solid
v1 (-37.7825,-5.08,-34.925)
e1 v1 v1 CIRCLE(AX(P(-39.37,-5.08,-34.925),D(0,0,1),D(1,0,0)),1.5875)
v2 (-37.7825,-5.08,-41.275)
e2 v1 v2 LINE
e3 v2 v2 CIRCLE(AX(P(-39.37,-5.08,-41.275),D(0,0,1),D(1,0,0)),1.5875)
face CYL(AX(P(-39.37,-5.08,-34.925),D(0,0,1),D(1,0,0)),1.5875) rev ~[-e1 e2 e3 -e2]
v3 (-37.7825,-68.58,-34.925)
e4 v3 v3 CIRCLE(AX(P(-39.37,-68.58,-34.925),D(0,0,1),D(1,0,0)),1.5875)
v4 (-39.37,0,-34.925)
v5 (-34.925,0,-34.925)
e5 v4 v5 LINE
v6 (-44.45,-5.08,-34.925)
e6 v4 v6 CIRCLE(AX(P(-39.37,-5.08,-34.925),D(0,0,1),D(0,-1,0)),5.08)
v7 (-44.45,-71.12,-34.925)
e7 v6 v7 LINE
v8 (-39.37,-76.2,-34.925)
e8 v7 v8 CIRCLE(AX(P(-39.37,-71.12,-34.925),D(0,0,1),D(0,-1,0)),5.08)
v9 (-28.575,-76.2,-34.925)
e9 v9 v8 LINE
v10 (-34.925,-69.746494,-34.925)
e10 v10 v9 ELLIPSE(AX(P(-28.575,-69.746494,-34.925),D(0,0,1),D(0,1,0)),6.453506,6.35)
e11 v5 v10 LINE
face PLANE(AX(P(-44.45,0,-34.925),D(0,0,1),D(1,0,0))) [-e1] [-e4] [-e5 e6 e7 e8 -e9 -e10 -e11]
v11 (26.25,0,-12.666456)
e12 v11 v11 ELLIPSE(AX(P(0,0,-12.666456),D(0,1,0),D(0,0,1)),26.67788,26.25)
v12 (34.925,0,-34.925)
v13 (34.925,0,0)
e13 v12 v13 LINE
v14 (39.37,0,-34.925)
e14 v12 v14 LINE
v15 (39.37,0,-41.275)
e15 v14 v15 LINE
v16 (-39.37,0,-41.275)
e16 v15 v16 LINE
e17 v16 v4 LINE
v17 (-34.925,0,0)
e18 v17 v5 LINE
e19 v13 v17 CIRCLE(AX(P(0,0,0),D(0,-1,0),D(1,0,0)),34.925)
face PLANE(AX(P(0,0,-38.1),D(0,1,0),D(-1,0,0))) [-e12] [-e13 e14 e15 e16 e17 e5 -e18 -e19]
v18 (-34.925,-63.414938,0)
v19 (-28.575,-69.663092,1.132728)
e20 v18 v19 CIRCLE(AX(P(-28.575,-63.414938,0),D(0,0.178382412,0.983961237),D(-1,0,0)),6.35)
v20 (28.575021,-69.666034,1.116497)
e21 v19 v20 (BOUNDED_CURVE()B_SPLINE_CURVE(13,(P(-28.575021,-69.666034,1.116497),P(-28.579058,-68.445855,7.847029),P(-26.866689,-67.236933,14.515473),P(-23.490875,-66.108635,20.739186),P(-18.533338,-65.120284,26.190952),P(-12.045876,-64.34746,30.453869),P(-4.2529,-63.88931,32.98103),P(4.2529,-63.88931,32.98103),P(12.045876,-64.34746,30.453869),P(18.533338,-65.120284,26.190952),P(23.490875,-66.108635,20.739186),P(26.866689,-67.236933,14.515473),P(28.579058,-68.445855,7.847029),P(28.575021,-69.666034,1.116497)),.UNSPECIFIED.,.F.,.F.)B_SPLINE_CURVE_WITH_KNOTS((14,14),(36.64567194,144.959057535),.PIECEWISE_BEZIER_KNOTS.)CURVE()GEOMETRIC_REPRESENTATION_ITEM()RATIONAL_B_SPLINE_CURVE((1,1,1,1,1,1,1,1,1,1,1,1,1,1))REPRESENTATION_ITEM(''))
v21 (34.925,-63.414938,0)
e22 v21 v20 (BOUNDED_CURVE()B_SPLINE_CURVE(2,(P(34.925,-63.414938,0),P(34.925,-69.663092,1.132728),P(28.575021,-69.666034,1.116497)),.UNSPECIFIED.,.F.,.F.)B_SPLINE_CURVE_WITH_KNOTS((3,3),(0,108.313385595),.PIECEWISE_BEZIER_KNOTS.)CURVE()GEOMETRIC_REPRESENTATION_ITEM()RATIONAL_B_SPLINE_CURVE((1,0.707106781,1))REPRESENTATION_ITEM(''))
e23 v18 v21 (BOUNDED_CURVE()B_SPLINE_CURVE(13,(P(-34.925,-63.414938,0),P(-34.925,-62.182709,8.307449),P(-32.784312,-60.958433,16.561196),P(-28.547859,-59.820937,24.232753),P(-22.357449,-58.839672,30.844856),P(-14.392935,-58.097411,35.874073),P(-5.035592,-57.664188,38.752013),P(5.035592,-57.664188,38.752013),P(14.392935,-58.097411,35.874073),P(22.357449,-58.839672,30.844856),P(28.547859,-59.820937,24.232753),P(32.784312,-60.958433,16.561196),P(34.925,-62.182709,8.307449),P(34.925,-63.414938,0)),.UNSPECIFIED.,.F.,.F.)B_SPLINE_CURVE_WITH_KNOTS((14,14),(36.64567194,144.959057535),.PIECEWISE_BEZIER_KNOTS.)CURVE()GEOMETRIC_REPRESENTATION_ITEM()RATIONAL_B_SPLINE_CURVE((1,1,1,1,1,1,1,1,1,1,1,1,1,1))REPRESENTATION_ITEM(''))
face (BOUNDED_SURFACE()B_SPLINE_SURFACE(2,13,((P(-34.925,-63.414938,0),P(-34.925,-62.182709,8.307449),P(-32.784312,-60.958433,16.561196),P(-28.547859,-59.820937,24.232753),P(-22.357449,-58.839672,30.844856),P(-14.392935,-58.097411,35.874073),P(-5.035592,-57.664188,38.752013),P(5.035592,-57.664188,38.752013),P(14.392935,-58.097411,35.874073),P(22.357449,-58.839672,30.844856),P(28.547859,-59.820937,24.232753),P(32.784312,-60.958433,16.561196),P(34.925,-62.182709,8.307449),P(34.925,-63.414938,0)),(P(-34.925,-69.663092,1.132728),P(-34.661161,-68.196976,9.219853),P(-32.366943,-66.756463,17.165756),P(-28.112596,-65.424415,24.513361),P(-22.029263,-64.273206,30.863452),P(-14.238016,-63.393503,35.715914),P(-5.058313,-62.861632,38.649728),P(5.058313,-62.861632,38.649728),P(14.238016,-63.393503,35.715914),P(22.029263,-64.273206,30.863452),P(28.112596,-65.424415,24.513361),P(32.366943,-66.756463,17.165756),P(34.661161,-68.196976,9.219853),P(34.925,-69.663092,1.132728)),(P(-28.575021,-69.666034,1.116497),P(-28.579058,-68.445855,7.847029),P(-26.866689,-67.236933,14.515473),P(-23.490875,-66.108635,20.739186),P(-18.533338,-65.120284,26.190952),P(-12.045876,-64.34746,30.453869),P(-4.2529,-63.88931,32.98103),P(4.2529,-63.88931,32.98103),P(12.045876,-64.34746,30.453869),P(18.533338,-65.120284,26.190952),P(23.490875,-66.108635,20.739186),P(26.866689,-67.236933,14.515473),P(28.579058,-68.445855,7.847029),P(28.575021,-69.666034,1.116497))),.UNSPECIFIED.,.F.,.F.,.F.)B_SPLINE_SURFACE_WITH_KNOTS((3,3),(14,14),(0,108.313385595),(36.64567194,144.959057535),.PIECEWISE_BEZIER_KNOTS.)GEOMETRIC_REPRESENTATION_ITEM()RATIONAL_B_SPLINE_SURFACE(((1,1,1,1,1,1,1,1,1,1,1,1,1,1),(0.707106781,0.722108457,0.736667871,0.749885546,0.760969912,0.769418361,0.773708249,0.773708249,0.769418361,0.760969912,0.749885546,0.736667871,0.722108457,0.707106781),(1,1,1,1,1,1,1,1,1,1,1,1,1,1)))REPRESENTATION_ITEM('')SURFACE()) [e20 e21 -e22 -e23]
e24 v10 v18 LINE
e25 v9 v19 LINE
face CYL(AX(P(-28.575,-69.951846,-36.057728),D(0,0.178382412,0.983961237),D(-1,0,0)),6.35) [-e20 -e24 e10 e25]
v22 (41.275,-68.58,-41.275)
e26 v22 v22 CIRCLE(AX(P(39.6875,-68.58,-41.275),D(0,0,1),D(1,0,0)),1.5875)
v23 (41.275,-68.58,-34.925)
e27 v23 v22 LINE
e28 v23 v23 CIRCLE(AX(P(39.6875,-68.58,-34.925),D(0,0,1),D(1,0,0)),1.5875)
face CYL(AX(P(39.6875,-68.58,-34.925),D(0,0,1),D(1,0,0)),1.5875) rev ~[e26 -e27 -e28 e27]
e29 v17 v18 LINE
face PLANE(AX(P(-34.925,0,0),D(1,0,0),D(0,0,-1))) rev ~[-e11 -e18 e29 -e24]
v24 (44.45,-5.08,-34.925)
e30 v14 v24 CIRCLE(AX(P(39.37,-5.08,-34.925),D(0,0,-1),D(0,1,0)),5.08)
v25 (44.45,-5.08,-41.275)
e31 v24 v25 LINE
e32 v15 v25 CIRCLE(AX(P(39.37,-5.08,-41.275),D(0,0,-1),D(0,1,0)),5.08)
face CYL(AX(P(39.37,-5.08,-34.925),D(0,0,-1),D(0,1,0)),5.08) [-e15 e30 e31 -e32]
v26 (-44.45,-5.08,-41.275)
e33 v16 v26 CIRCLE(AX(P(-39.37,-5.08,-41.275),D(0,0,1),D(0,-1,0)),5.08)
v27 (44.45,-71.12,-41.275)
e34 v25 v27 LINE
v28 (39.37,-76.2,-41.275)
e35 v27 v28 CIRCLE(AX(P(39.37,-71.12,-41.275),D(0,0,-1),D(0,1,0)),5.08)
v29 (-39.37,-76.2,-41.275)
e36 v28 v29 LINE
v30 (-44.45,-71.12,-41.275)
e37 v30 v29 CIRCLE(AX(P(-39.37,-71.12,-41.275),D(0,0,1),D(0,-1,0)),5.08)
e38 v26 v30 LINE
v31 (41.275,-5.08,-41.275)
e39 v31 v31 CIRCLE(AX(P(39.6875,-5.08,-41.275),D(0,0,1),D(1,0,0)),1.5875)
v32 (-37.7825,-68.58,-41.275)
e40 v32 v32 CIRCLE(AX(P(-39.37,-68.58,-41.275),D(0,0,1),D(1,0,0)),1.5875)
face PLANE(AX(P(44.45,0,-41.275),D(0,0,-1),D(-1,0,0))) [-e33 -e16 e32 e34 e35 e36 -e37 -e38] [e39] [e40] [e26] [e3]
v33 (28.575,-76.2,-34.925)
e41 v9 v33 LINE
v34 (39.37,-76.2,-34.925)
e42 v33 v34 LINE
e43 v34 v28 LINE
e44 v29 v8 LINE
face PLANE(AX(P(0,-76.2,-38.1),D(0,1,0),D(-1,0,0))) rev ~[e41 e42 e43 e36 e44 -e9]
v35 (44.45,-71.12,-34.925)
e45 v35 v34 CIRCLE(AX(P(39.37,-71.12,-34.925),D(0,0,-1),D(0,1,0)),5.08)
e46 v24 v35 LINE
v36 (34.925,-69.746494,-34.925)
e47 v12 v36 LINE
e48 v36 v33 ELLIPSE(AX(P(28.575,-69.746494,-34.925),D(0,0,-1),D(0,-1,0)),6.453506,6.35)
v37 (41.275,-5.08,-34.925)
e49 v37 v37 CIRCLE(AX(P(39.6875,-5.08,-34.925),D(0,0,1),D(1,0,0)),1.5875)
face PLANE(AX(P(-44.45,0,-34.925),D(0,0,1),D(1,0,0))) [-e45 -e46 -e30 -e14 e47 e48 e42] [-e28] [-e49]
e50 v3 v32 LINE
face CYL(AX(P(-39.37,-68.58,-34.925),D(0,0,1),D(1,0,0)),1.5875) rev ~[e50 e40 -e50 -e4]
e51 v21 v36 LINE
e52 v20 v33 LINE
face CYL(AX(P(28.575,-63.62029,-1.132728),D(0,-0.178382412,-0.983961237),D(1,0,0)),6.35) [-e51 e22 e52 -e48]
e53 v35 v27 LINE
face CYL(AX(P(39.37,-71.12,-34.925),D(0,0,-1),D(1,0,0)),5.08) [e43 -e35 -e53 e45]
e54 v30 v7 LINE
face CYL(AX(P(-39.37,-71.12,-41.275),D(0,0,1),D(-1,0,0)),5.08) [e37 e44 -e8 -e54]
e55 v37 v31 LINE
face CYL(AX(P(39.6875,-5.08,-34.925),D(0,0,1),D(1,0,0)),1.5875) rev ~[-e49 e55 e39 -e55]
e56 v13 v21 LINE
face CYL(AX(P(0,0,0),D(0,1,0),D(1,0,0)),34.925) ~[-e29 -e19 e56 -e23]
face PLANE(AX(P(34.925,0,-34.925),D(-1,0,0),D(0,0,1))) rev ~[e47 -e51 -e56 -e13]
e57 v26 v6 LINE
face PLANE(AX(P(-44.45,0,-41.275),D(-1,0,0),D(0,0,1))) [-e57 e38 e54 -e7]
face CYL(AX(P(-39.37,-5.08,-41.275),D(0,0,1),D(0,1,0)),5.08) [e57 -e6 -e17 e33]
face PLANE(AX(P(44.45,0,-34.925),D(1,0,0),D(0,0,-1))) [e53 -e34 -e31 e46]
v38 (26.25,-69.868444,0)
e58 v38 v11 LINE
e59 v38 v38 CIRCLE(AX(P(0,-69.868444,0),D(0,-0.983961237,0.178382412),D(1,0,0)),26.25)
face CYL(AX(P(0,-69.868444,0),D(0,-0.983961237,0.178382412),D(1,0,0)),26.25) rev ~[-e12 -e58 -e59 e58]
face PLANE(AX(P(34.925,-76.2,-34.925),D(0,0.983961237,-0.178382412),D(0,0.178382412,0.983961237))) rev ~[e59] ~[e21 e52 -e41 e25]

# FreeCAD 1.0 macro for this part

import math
import FreeCAD as App
import Part
import Sketcher
from FreeCAD import Vector
Q = App.Units.Quantity


def edges_at(feature, points):
    """Names of the edges that pass closest to the given points."""
    edges = feature.Shape.Edges
    near = lambda p: min(range(len(edges)), key=lambda i: edges[i].distToShape(Part.Vertex(*p))[0])
    return sorted({f"Edge{near(p) + 1}" for p in points})


def add_polygon(sketch, points):
    """Adds a closed chain of lines whose ends are joined by coincident constraints."""
    first, n = sketch.GeometryCount, len(points)
    for a, b in zip(points, points[1:] + points[:1]):
        sketch.addGeometry(Part.LineSegment(App.Vector(*a, 0), App.Vector(*b, 0)), False)
    for i in range(n):
        sketch.addConstraint(Sketcher.Constraint("Coincident", first + i, 2, first + (i + 1) % n, 1))

doc = App.newDocument("Part")
body = doc.addObject("PartDesign::Body", "Body")

# Sketch on XZ plane
sketch1 = body.newObject("Sketcher::SketchObject", "Sketch")
sketch1.AttachmentSupport = (doc.getObject("XZ_Plane"), [""])
sketch1.MapMode = "FlatFace"
sketch1.addGeometry([
    Part.LineSegment(Vector(-35, -35, 0), Vector(35, -35, 0)),
    Part.LineSegment(Vector(35, -35, 0), Vector(35, 0, 0)),
    Part.ArcOfCircle(Part.Circle(Vector(0, 0, 0), Vector(0, 0, 1), 35), math.radians(0), math.radians(180)),
    Part.LineSegment(Vector(-35, 0, 0), Vector(-35, -35, 0)),
], False)
sketch1.addConstraint([
    Sketcher.Constraint("Coincident", 0, 2, 1, 1),
    Sketcher.Constraint("Tangent", 1, 2, 2, 1),
    Sketcher.Constraint("Tangent", 2, 2, 3, 1),
    Sketcher.Constraint("Coincident", 3, 2, 0, 1),
    Sketcher.Constraint("Horizontal", 0),
    Sketcher.Constraint("Vertical", 1),
    Sketcher.Constraint("Vertical", 3),
    Sketcher.Constraint("Coincident", 2, 3, -1, 1),
    Sketcher.Constraint("Radius", 2, Q("1.375 in")),
    Sketcher.Constraint("DistanceY", 1, 1, 1, 2, Q("1.375 in")),
])
pad1 = body.newObject("PartDesign::Pad", "Pad")
pad1.Profile = sketch1
pad1.Length = Q("3 in")

# Sketch on YZ plane
sketch2 = body.newObject("Sketcher::SketchObject", "Sketch001")
sketch2.AttachmentSupport = (doc.getObject("YZ_Plane"), [""])
sketch2.MapMode = "FlatFace"
sketch2.AttachmentOffset = App.Placement(Vector(0, 0, 1.375 * 25.4), App.Rotation())
add_polygon(sketch2, [(-76, 35), (-76, -35), (-64, 35)])  # lines 0-2
sketch2.addConstraint([
    Sketcher.Constraint("Vertical", 0),
    Sketcher.Constraint("Horizontal", 2),
    Sketcher.Constraint("DistanceX", 2, 2, 2, 1, Q("0.5 in")),
    Sketcher.Constraint("DistanceX", 0, 2, -1, 1, Q("3 in")),
    Sketcher.Constraint("DistanceY", 0, 2, -1, 1, Q("1.375 in")),
    Sketcher.Constraint("Distance", 1, Q("71.19536 mm")),
])
pocket1 = body.newObject("PartDesign::Pocket", "Pocket")
pocket1.Profile = sketch2
pocket1.Type = "ThroughAll"

# Sketch on XZ plane
sketch3 = body.newObject("Sketcher::SketchObject", "Sketch002")
sketch3.AttachmentSupport = (doc.getObject("XZ_Plane"), [""])
sketch3.MapMode = "FlatFace"
add_polygon(sketch3, [(44, -35), (44, -41), (-44, -41), (-44, -35)])  # lines 0-3
sketch3.addConstraint([
    Sketcher.Constraint("Vertical", 0),
    Sketcher.Constraint("Horizontal", 1),
    Sketcher.Constraint("Vertical", 2),
    Sketcher.Constraint("Horizontal", 3),
    Sketcher.Constraint("DistanceX", 1, 2, 1, 1, Q("3.5 in")),
    Sketcher.Constraint("DistanceY", 0, 2, 0, 1, Q("0.25 in")),
    Sketcher.Constraint("DistanceX", -1, 1, 0, 2, Q("1.75 in")),
    Sketcher.Constraint("DistanceY", 0, 2, -1, 1, Q("1.625 in")),
])
pad2 = body.newObject("PartDesign::Pad", "Pad001")
pad2.Profile = sketch3
pad2.Length = Q("3 in")

# Sketch on an angled plane
sketch4 = body.newObject("Sketcher::SketchObject", "Sketch003")
sketch4.Placement = App.Placement(Vector(0, -67.64521, 12.263406), App.Rotation(Vector(1, 0, 0), Vector(0, 0.178382412, 0.983961237), Vector(0, -0.983961237, 0.178382412), "ZXY"))
sketch4.addGeometry(Part.Circle(Vector(0, -12, 0), Vector(0, 0, 1), 26), False)
sketch4.addConstraint([
    Sketcher.Constraint("PointOnObject", 0, 3, -2),
    Sketcher.Constraint("Diameter", 0, Q("52.5 mm")),
    Sketcher.Constraint("DistanceY", 0, 3, -1, 1, Q("12.463302 mm")),
])
pocket2 = body.newObject("PartDesign::Pocket", "Pocket001")
pocket2.Profile = sketch4
pocket2.Type = "ThroughAll"
doc.recompute()

fillet = body.newObject("PartDesign::Fillet", "Fillet")
fillet.Base = (pocket2, edges_at(pocket2, [(0, -63.537, 34.925)]))
fillet.Radius = Q("0.25 in")
doc.recompute()

fillet2 = body.newObject("PartDesign::Fillet", "Fillet001")
fillet2.Base = (fillet, edges_at(fillet, [
    (-44.45, -76.2, -38.1),
    (-44.45, 0, -38.1),
    (44.45, -76.2, -38.1),
    (44.45, 0, -38.1),
]))
fillet2.Radius = Q("0.2 in")

# Sketch on XY plane
sketch5 = body.newObject("Sketcher::SketchObject", "Sketch004")
sketch5.AttachmentSupport = (doc.getObject("XY_Plane"), [""])
sketch5.MapMode = "FlatFace"
sketch5.AttachmentOffset = App.Placement(Vector(0, 0, -1.375 * 25.4), App.Rotation())
sketch5.addGeometry([
    Part.Circle(Vector(-39.4, -5.1, 0), Vector(0, 0, 1), 1.6),
    Part.Circle(Vector(-39.4, -68.6, 0), Vector(0, 0, 1), 1.6),
    Part.Circle(Vector(39.7, -68.6, 0), Vector(0, 0, 1), 1.6),
    Part.Circle(Vector(39.7, -5.1, 0), Vector(0, 0, 1), 1.6),
], False)
sketch5.addConstraint([
    Sketcher.Constraint("Equal", 0, 1),
    Sketcher.Constraint("Equal", 1, 2),
    Sketcher.Constraint("Equal", 2, 3),
    Sketcher.Constraint("Horizontal", 1, 3, 2, 3),
    Sketcher.Constraint("Horizontal", 0, 3, 3, 3),
    Sketcher.Constraint("Vertical", 0, 3, 1, 3),
    Sketcher.Constraint("Vertical", 2, 3, 3, 3),
    Sketcher.Constraint("Diameter", 0, Q("0.125 in")),
    Sketcher.Constraint("DistanceY", 0, 3, -1, 1, Q("0.2 in")),
    Sketcher.Constraint("DistanceY", 1, 3, -1, 1, Q("2.7 in")),
    Sketcher.Constraint("DistanceX", 0, 3, -1, 1, Q("1.55 in")),
    Sketcher.Constraint("DistanceX", -1, 1, 2, 3, Q("1.5625 in")),
])
pocket3 = body.newObject("PartDesign::Pocket", "Pocket002")
pocket3.Profile = sketch5
pocket3.Length = Q("1 in")

doc.recompute()
